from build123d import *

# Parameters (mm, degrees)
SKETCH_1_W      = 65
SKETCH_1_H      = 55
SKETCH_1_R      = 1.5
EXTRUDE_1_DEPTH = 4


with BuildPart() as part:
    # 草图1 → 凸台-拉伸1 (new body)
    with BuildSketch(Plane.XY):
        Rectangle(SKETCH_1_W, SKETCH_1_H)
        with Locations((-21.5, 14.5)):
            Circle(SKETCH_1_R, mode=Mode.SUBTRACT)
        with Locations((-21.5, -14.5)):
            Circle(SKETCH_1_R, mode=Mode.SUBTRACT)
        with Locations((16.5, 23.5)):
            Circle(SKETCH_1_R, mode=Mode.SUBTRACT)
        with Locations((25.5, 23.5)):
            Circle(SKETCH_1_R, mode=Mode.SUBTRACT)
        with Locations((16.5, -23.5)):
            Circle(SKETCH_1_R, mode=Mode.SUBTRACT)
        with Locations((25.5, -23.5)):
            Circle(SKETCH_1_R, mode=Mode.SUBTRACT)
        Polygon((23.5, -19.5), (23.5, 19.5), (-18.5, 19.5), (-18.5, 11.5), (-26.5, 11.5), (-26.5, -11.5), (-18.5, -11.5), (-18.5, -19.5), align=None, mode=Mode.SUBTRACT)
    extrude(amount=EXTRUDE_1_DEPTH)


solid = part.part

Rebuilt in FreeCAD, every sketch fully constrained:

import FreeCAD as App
import Part
import Sketcher

doc = App.newDocument("Part")
params = doc.addObject("Spreadsheet::Sheet", "Params")
for row, (alias, value) in enumerate([
    ("sketch1_diameter", "3 mm"),
    ("sketch1_width", "65 mm"),
    ("sketch1_width2", "42 mm"),
    ("sketch1_width3", "8 mm"),
    ("sketch1_height", "55 mm"),
    ("pad1_length", "4 mm"),
], start=1):
    params.set(f"A{row}", alias)
    params.set(f"B{row}", "=" + value)
    params.setAlias(f"B{row}", alias)

body = doc.addObject("PartDesign::Body", "Body")

# Sketch on XY plane
sketch1 = doc.addObject("Sketcher::SketchObject", "Sketch")
body.addObject(sketch1)
sketch1.AttachmentSupport = (doc.XY_Plane, [""])
sketch1.MapMode = "FlatFace"
sketch1.addGeometry(Part.LineSegment(App.Vector(-32.5, 27.5, 0), App.Vector(-32.5, -27.5, 0)), False)
sketch1.addGeometry(Part.LineSegment(App.Vector(-32.5, -27.5, 0), App.Vector(32.5, -27.5, 0)), False)
sketch1.addGeometry(Part.LineSegment(App.Vector(32.5, -27.5, 0), App.Vector(32.5, 27.5, 0)), False)
sketch1.addGeometry(Part.LineSegment(App.Vector(32.5, 27.5, 0), App.Vector(-32.5, 27.5, 0)), False)
sketch1.addGeometry(Part.Circle(App.Vector(-21.5, -14.5, 0), App.Vector(0, 0, 1), 1.5), False)
sketch1.addGeometry(Part.Circle(App.Vector(16.5, -23.5, 0), App.Vector(0, 0, 1), 1.5), False)
sketch1.addGeometry(Part.Circle(App.Vector(25.5, -23.5, 0), App.Vector(0, 0, 1), 1.5), False)
sketch1.addGeometry(Part.LineSegment(App.Vector(23.5, 19.5, 0), App.Vector(23.5, -19.5, 0)), False)
sketch1.addGeometry(Part.LineSegment(App.Vector(23.5, -19.5, 0), App.Vector(-18.5, -19.5, 0)), False)
sketch1.addGeometry(Part.LineSegment(App.Vector(-18.5, -19.5, 0), App.Vector(-18.5, -11.5, 0)), False)
sketch1.addGeometry(Part.LineSegment(App.Vector(-18.5, -11.5, 0), App.Vector(-26.5, -11.5, 0)), False)
sketch1.addGeometry(Part.LineSegment(App.Vector(-26.5, -11.5, 0), App.Vector(-26.5, 11.5, 0)), False)
sketch1.addGeometry(Part.LineSegment(App.Vector(-26.5, 11.5, 0), App.Vector(-18.5, 11.5, 0)), False)
sketch1.addGeometry(Part.LineSegment(App.Vector(-18.5, 11.5, 0), App.Vector(-18.5, 19.5, 0)), False)
sketch1.addGeometry(Part.LineSegment(App.Vector(-18.5, 19.5, 0), App.Vector(23.5, 19.5, 0)), False)
sketch1.addGeometry(Part.Circle(App.Vector(-21.5, 14.5, 0), App.Vector(0, 0, 1), 1.5), False)
sketch1.addGeometry(Part.Circle(App.Vector(16.5, 23.5, 0), App.Vector(0, 0, 1), 1.5), False)
sketch1.addGeometry(Part.Circle(App.Vector(25.5, 23.5, 0), App.Vector(0, 0, 1), 1.5), False)
sketch1.addConstraint(Sketcher.Constraint("Coincident", 0, 2, 1, 1))
sketch1.addConstraint(Sketcher.Constraint("Coincident", 1, 2, 2, 1))
sketch1.addConstraint(Sketcher.Constraint("Coincident", 2, 2, 3, 1))
sketch1.addConstraint(Sketcher.Constraint("Coincident", 3, 2, 0, 1))
sketch1.addConstraint(Sketcher.Constraint("Coincident", 7, 2, 8, 1))
sketch1.addConstraint(Sketcher.Constraint("Coincident", 8, 2, 9, 1))
sketch1.addConstraint(Sketcher.Constraint("Coincident", 9, 2, 10, 1))
sketch1.addConstraint(Sketcher.Constraint("Coincident", 10, 2, 11, 1))
sketch1.addConstraint(Sketcher.Constraint("Coincident", 11, 2, 12, 1))
sketch1.addConstraint(Sketcher.Constraint("Coincident", 12, 2, 13, 1))
sketch1.addConstraint(Sketcher.Constraint("Coincident", 13, 2, 14, 1))
sketch1.addConstraint(Sketcher.Constraint("Coincident", 14, 2, 7, 1))
sketch1.addConstraint(Sketcher.Constraint("Vertical", 0))
sketch1.addConstraint(Sketcher.Constraint("Horizontal", 1))
sketch1.addConstraint(Sketcher.Constraint("Vertical", 2))
sketch1.addConstraint(Sketcher.Constraint("Horizontal", 3))
sketch1.addConstraint(Sketcher.Constraint("Vertical", 7))
sketch1.addConstraint(Sketcher.Constraint("Horizontal", 8))
sketch1.addConstraint(Sketcher.Constraint("Vertical", 9))
sketch1.addConstraint(Sketcher.Constraint("Horizontal", 10))
sketch1.addConstraint(Sketcher.Constraint("Vertical", 11))
sketch1.addConstraint(Sketcher.Constraint("Horizontal", 12))
sketch1.addConstraint(Sketcher.Constraint("Vertical", 13))
sketch1.addConstraint(Sketcher.Constraint("Horizontal", 14))
sketch1.addConstraint(Sketcher.Constraint("Equal", 4, 5))
sketch1.addConstraint(Sketcher.Constraint("Equal", 5, 6))
sketch1.addConstraint(Sketcher.Constraint("Equal", 6, 15))
sketch1.addConstraint(Sketcher.Constraint("Equal", 15, 16))
sketch1.addConstraint(Sketcher.Constraint("Equal", 16, 17))
sketch1.addConstraint(Sketcher.Constraint("Symmetric", 0, 2, 2, 2, -1, 1))
sketch1.addConstraint(Sketcher.Constraint("Symmetric", 4, 3, 15, 3, -1))
sketch1.addConstraint(Sketcher.Constraint("Symmetric", 5, 3, 16, 3, -1))
sketch1.addConstraint(Sketcher.Constraint("Symmetric", 6, 3, 17, 3, -1))
sketch1.addConstraint(Sketcher.Constraint("Symmetric", 9, 2, 12, 2, -1))
sketch1.addConstraint(Sketcher.Constraint("Horizontal", 5, 3, 6, 3))
sketch1.addConstraint(Sketcher.Constraint("Equal", 12, 9))
sketch1.addConstraint(Sketcher.Constraint("Equal", 9, 13))
sketch1.addConstraint(Sketcher.Constraint("Diameter", 4, 3.0))
sketch1.addConstraint(Sketcher.Constraint("DistanceX", 1, 1, 1, 2, 65.0))
sketch1.addConstraint(Sketcher.Constraint("DistanceX", 8, 2, 8, 1, 42.0))
sketch1.addConstraint(Sketcher.Constraint("DistanceX", 10, 2, 10, 1, 8.0))
sketch1.addConstraint(Sketcher.Constraint("DistanceY", 0, 2, 0, 1, 55.0))
sketch1.addConstraint(Sketcher.Constraint("DistanceY", 7, 2, 7, 1, 39.0))
sketch1.addConstraint(Sketcher.Constraint("DistanceX", 4, 3, 5, 3, 38.0))
sketch1.addConstraint(Sketcher.Constraint("DistanceY", 5, 3, 4, 3, 9.0))
sketch1.addConstraint(Sketcher.Constraint("DistanceX", 5, 3, 6, 3, 9.0))
sketch1.addConstraint(Sketcher.Constraint("DistanceY", 4, 3, 15, 3, 29.0))
sketch1.addConstraint(Sketcher.Constraint("DistanceX", 0, 2, 4, 3, 11.0))
sketch1.addConstraint(Sketcher.Constraint("DistanceX", 7, 2, 6, 3, 2.0))
sketch1.setExpression("Constraints[37]", "Params.sketch1_diameter")
sketch1.setExpression("Constraints[38]", "Params.sketch1_width")
sketch1.setExpression("Constraints[39]", "Params.sketch1_width2")
sketch1.setExpression("Constraints[40]", "Params.sketch1_width3")
sketch1.setExpression("Constraints[41]", "Params.sketch1_height")
pad1 = doc.addObject("PartDesign::Pad", "Pad")
body.addObject(pad1)
pad1.Profile = sketch1
pad1.setExpression("Length", "Params.pad1_length")

doc.recompute()
